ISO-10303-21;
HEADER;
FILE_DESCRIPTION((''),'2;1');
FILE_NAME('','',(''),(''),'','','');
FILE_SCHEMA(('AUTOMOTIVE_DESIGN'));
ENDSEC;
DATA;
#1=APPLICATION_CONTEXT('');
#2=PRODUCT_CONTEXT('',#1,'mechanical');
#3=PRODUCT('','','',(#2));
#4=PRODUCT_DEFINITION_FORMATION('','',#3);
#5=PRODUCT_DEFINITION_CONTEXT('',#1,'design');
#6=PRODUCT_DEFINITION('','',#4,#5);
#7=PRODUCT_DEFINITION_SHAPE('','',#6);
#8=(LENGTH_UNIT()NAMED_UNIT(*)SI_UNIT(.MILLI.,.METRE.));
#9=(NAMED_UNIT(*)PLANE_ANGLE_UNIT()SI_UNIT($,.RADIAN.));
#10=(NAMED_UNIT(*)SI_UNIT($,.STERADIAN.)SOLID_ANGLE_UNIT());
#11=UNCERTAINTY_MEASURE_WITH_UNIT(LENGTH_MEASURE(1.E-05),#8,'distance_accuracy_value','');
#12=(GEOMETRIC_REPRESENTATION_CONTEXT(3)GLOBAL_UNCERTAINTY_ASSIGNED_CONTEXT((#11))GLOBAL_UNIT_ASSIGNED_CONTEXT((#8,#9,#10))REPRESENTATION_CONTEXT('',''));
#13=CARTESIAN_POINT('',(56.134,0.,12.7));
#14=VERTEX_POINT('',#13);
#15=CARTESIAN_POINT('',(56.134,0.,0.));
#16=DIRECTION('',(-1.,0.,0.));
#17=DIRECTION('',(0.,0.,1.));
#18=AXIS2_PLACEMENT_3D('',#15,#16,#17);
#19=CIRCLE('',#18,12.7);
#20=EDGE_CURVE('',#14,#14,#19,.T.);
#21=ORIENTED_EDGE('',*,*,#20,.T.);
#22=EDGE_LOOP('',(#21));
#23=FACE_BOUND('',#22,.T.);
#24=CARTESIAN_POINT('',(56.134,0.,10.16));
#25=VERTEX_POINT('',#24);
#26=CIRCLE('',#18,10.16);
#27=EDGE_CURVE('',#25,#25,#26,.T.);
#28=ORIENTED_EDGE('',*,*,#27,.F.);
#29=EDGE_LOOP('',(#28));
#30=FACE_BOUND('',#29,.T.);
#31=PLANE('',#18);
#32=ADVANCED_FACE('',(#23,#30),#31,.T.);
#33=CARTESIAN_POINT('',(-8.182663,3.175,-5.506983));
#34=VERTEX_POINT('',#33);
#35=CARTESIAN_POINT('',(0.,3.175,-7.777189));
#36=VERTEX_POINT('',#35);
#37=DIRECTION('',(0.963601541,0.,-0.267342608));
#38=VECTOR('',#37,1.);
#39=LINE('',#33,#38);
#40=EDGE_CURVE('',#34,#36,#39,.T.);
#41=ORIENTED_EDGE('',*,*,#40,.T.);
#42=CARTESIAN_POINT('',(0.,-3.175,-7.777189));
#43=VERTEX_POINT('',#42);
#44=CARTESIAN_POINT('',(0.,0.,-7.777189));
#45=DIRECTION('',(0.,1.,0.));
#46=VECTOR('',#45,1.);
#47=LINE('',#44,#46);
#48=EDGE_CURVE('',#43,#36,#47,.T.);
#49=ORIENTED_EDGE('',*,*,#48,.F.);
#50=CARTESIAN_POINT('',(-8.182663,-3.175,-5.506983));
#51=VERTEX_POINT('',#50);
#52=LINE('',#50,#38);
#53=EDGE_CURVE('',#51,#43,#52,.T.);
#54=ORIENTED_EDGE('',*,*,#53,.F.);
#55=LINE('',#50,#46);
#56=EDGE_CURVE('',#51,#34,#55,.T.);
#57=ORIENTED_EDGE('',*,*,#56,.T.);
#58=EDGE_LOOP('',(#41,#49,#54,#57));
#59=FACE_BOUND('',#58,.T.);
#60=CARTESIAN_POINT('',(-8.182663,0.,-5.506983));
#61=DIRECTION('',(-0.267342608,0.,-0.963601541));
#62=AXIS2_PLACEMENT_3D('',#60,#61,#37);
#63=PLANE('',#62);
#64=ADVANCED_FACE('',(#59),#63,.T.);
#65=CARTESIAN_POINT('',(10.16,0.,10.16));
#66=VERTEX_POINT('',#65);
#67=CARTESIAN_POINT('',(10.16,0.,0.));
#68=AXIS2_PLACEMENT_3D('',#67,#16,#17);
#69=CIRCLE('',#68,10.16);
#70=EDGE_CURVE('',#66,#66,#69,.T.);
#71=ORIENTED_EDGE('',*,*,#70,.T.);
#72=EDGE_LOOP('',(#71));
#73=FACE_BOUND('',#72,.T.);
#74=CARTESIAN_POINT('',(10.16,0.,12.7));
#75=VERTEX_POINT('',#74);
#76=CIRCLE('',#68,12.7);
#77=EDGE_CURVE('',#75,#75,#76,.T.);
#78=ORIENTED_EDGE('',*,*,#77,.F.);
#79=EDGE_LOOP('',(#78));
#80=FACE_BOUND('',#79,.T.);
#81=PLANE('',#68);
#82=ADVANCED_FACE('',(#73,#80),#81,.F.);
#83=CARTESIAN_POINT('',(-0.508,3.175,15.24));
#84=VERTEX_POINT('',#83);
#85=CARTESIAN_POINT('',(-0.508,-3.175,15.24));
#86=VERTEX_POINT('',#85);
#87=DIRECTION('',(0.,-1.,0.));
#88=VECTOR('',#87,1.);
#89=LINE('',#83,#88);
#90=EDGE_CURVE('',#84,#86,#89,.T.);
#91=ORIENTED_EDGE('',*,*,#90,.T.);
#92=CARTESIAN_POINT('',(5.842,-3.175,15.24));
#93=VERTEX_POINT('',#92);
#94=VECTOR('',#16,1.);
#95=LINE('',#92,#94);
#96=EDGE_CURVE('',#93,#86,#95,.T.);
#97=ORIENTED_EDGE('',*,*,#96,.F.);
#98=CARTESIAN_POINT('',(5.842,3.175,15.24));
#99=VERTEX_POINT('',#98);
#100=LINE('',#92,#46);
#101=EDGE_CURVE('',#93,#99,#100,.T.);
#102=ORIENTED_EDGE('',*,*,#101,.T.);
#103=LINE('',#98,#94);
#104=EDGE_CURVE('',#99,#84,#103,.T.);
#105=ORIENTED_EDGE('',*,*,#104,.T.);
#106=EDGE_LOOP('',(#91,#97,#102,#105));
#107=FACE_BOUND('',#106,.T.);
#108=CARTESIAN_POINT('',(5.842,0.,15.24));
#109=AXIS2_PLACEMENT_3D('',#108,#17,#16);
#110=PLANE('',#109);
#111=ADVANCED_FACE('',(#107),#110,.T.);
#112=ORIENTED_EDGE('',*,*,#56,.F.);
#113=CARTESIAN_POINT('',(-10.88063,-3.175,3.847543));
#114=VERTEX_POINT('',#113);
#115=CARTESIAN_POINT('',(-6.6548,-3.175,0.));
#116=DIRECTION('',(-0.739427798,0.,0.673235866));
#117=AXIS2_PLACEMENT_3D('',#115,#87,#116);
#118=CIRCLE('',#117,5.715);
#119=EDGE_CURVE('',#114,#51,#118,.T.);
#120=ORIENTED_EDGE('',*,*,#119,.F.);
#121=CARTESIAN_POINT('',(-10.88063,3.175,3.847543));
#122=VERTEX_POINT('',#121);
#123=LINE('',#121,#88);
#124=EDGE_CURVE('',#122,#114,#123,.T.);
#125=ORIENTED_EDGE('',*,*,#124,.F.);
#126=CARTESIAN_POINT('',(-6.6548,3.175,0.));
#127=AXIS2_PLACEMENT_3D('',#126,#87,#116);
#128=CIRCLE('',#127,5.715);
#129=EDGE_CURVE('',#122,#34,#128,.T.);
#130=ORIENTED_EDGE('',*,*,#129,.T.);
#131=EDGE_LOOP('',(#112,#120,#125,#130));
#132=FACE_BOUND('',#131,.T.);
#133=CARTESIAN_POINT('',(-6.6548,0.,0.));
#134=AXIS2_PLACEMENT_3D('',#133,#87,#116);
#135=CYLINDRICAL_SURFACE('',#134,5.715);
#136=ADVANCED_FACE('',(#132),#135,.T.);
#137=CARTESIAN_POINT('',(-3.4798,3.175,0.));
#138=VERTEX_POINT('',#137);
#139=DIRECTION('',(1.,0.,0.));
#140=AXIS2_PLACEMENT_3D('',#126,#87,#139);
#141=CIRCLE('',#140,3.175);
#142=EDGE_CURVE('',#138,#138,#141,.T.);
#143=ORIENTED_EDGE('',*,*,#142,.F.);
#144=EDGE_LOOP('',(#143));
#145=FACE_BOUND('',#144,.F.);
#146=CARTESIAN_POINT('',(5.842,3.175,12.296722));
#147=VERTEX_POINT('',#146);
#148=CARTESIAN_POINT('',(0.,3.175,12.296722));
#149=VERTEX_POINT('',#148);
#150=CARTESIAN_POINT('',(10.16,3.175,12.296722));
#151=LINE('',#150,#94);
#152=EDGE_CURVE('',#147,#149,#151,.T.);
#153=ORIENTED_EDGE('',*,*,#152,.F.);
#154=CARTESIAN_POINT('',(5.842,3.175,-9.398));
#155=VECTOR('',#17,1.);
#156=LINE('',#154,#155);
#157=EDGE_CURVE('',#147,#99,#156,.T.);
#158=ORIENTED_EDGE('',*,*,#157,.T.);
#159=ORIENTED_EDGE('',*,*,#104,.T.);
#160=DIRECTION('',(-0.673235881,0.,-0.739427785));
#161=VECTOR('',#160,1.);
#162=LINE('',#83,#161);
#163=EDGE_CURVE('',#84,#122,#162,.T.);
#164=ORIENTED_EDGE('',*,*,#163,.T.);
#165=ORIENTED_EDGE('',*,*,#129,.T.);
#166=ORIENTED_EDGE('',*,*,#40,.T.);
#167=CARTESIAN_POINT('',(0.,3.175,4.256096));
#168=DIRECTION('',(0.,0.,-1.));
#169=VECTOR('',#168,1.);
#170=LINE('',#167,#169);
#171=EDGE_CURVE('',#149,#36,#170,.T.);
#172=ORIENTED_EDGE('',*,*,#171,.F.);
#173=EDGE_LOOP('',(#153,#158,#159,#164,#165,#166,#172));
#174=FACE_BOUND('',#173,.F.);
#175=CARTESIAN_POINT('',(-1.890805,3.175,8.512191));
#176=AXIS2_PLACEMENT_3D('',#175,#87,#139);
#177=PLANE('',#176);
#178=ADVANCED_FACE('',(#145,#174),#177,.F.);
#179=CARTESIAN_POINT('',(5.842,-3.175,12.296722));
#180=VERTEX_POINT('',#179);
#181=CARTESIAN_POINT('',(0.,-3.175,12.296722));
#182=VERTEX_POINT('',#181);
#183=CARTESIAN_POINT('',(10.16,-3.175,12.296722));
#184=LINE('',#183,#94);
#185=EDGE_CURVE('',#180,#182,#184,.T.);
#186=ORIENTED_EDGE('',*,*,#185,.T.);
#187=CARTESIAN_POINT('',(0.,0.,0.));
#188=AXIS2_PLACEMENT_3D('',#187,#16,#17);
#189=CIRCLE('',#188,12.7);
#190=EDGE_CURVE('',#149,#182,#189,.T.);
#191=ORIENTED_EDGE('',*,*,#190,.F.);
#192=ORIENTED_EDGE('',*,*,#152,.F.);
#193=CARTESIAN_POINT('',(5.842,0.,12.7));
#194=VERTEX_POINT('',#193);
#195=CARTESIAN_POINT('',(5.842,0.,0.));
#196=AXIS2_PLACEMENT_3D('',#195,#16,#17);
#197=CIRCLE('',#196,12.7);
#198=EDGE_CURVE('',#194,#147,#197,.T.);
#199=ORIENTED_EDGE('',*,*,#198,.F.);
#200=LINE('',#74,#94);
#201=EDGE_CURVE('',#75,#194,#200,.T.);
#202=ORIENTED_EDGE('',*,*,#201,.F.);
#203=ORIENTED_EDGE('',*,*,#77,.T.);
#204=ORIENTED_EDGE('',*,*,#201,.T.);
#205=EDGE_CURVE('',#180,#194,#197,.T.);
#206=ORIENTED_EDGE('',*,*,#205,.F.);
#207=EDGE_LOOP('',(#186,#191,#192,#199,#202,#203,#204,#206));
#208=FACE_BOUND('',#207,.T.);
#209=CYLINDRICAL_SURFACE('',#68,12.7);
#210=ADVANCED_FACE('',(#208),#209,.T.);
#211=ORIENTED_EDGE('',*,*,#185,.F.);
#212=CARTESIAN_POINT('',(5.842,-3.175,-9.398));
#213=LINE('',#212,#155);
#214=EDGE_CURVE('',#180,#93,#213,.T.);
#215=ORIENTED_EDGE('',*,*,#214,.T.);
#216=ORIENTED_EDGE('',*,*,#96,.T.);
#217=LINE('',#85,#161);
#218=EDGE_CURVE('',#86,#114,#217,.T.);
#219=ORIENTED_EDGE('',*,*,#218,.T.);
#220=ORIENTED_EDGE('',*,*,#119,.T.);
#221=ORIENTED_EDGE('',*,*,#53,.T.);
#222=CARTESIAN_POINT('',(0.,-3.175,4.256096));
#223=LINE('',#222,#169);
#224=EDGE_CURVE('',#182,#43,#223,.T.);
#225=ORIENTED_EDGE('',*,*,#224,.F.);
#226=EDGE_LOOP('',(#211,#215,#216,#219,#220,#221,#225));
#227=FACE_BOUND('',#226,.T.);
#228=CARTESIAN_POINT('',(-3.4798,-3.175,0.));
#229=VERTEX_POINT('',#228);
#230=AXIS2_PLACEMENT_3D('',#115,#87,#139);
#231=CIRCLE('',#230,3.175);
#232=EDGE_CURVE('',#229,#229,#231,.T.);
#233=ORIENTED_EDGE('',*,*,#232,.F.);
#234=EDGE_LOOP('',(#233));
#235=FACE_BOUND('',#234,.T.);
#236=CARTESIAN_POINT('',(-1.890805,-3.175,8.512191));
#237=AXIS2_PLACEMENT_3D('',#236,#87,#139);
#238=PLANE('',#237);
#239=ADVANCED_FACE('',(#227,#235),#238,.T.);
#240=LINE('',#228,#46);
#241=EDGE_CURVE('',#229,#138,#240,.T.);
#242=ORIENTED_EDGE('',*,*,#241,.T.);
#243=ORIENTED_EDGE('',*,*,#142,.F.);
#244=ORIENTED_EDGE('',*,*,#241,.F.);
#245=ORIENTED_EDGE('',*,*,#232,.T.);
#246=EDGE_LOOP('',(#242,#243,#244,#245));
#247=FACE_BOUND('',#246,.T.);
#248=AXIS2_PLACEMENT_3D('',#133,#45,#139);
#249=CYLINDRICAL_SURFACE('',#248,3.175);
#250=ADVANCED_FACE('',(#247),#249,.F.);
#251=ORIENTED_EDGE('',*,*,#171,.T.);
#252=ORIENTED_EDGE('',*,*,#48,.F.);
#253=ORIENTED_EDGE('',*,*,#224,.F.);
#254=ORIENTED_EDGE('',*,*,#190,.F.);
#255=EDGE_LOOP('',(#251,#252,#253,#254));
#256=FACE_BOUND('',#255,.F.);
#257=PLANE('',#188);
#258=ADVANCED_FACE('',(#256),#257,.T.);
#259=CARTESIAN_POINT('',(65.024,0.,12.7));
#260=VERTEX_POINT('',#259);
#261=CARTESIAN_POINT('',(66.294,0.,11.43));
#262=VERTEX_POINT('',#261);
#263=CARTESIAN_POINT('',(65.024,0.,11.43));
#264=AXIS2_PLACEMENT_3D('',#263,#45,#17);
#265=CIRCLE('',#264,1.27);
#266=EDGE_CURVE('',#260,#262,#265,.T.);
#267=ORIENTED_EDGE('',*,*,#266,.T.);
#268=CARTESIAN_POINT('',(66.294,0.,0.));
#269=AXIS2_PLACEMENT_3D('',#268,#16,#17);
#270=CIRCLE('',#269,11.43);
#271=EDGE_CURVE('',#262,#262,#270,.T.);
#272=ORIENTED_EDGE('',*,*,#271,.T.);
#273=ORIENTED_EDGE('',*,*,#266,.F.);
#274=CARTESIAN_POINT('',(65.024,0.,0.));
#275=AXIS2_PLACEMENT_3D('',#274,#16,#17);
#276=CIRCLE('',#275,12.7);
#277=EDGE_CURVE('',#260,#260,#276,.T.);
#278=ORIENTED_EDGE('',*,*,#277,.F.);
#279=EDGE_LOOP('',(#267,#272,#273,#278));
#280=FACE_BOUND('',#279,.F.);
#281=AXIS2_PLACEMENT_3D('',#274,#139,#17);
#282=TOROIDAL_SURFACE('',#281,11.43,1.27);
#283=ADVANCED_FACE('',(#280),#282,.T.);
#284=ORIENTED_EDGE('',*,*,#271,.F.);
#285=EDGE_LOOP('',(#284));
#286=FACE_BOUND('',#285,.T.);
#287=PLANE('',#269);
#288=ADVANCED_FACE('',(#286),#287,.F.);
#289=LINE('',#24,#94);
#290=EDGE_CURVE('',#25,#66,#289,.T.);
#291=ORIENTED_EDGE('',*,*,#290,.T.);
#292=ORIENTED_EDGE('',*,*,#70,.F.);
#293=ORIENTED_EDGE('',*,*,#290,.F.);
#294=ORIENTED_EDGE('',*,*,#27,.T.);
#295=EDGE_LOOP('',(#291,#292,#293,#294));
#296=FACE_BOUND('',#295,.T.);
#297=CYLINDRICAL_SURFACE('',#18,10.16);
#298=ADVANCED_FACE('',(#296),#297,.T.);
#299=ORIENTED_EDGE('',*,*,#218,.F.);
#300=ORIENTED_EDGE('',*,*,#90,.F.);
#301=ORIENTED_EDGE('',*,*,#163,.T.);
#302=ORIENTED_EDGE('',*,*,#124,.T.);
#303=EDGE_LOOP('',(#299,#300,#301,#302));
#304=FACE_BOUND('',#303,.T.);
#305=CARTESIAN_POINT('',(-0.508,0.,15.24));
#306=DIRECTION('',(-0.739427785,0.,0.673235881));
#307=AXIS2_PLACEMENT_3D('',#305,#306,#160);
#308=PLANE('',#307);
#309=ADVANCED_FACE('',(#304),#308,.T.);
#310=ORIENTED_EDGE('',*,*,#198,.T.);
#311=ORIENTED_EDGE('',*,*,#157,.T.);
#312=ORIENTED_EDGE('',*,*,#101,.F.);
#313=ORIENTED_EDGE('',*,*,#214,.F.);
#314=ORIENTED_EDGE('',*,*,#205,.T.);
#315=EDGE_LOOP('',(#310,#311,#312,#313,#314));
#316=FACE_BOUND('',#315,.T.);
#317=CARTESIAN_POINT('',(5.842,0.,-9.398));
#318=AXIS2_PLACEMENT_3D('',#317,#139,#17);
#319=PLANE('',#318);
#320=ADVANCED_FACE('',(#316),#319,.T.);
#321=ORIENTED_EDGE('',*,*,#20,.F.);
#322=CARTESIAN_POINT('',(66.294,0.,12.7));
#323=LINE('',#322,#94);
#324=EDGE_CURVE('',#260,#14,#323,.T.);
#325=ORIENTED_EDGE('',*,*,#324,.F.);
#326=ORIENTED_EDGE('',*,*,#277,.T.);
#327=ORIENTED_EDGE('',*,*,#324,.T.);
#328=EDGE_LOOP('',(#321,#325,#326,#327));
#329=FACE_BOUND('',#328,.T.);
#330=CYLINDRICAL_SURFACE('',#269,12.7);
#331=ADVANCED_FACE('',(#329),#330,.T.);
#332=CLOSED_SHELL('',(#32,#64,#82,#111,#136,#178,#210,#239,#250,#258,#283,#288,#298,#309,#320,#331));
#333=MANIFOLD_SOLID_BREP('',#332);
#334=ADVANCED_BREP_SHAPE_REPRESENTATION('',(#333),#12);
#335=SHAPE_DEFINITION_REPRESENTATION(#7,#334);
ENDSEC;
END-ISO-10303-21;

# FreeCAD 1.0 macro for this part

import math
import FreeCAD as App
import Part
import Sketcher

V = App.Vector
Q = App.Units.Quantity


def edges_at(feature, points):
    """Names of the edges that pass closest to the given points."""
    edges = feature.Shape.Edges
    near = lambda p: min(range(len(edges)), key=lambda i: edges[i].distToShape(Part.Vertex(*p))[0])
    return sorted({f"Edge{near(p) + 1}" for p in points})


def add_polygon(sketch, points):
    """Adds a closed chain of lines whose ends are joined by coincident constraints."""
    first, n = sketch.GeometryCount, len(points)
    for a, b in zip(points, points[1:] + points[:1]):
        sketch.addGeometry(Part.LineSegment(App.Vector(*a, 0), App.Vector(*b, 0)), False)
    for i in range(n):
        sketch.addConstraint(Sketcher.Constraint("Coincident", first + i, 2, first + (i + 1) % n, 1))

doc = App.newDocument("Part")
body = doc.addObject("PartDesign::Body", "Body")

# Sketch on XZ plane
sketch1 = body.newObject("Sketcher::SketchObject", "Sketch")
sketch1.AttachmentSupport = (doc.getObject("XZ_Plane"), [""])
sketch1.MapMode = "FlatFace"
add_polygon(sketch1, [(0, 12.7), (0, 0), (66.3, 0), (66.3, 12.7), (56.1, 12.7), (56.1, 10.2), (10.2, 10.2), (10.2, 12.7)])  # lines 0-7
sketch1.addConstraint(Sketcher.Constraint("Vertical", 0))
sketch1.addConstraint(Sketcher.Constraint("Horizontal", 1))
sketch1.addConstraint(Sketcher.Constraint("Vertical", 2))
sketch1.addConstraint(Sketcher.Constraint("Horizontal", 3))
sketch1.addConstraint(Sketcher.Constraint("Vertical", 4))
sketch1.addConstraint(Sketcher.Constraint("Horizontal", 5))
sketch1.addConstraint(Sketcher.Constraint("Vertical", 6))
sketch1.addConstraint(Sketcher.Constraint("Horizontal", 7))
sketch1.addConstraint(Sketcher.Constraint("Coincident", 0, 2, -1, 1))
sketch1.addConstraint(Sketcher.Constraint("Horizontal", 3, 2, 6, 2))
sketch1.addConstraint(Sketcher.Constraint("Equal", 3, 7))
sketch1.addConstraint(Sketcher.Constraint("DistanceX", 3, 2, 3, 1, Q("0.4 in")))
sketch1.addConstraint(Sketcher.Constraint("DistanceY", 0, 2, 0, 1, Q("0.5 in")))
sketch1.addConstraint(Sketcher.Constraint("DistanceY", 4, 2, 4, 1, Q("0.1 in")))
sketch1.addConstraint(Sketcher.Constraint("DistanceX", 1, 1, 1, 2, Q("2.61 in")))
revolution = body.newObject("PartDesign::Revolution", "Revolution")
revolution.Profile = sketch1
revolution.ReferenceAxis = (sketch1, ["H_Axis"])
revolution.Angle = 360

# Sketch on XZ plane
sketch2 = body.newObject("Sketcher::SketchObject", "Sketch001")
sketch2.AttachmentSupport = (doc.getObject("XZ_Plane"), [""])
sketch2.MapMode = "FlatFace"
sketch2.addGeometry(Part.LineSegment(V(5.8, 15.2, 0), V(-0.5, 15.2, 0)), False)
sketch2.addGeometry(Part.LineSegment(V(-0.5, 15.2, 0), V(-10.9, 3.8, 0)), False)
sketch2.addGeometry(Part.ArcOfCircle(Part.Circle(V(-6.7, 0, 0), V(0, 0, 1), 5.7), math.radians(138), math.radians(254)), False)
sketch2.addGeometry(Part.LineSegment(V(-8.2, -5.5, 0), V(5.8, -9.4, 0)), False)
sketch2.addGeometry(Part.LineSegment(V(5.8, -9.4, 0), V(5.8, 15.2, 0)), False)
sketch2.addGeometry(Part.Circle(V(-6.7, 0, 0), V(0, 0, 1), 3.2), False)
sketch2.addConstraint(Sketcher.Constraint("Coincident", 0, 2, 1, 1))
sketch2.addConstraint(Sketcher.Constraint("Tangent", 1, 2, 2, 1))
sketch2.addConstraint(Sketcher.Constraint("Tangent", 2, 2, 3, 1))
sketch2.addConstraint(Sketcher.Constraint("Coincident", 3, 2, 4, 1))
sketch2.addConstraint(Sketcher.Constraint("Coincident", 4, 2, 0, 1))
sketch2.addConstraint(Sketcher.Constraint("Horizontal", 0))
sketch2.addConstraint(Sketcher.Constraint("Vertical", 4))
sketch2.addConstraint(Sketcher.Constraint("Coincident", 5, 3, 2, 3))
sketch2.addConstraint(Sketcher.Constraint("PointOnObject", 2, 3, -1))
sketch2.addConstraint(Sketcher.Constraint("Diameter", 5, Q("0.25 in")))
sketch2.addConstraint(Sketcher.Constraint("Radius", 2, Q("0.225 in")))
sketch2.addConstraint(Sketcher.Constraint("DistanceX", 0, 2, 0, 1, Q("0.25 in")))
sketch2.addConstraint(Sketcher.Constraint("DistanceY", 4, 1, 4, 2, Q("0.97 in")))
sketch2.addConstraint(Sketcher.Constraint("DistanceY", -1, 1, 0, 2, Q("0.6 in")))
sketch2.addConstraint(Sketcher.Constraint("DistanceX", 0, 2, -1, 1, Q("0.02 in")))
sketch2.addConstraint(Sketcher.Constraint("DistanceX", 2, 3, -1, 1, Q("0.262 in")))
pad1 = body.newObject("PartDesign::Pad", "Pad")
pad1.Profile = sketch2
pad1.Length = Q("0.25 in")
pad1.Midplane = True
doc.recompute()

fillet = body.newObject("PartDesign::Fillet", "Fillet")
fillet.Base = (pad1, edges_at(pad1, [(66.294, 0, -12.7)]))
fillet.Radius = Q("0.05 in")

doc.recompute()
